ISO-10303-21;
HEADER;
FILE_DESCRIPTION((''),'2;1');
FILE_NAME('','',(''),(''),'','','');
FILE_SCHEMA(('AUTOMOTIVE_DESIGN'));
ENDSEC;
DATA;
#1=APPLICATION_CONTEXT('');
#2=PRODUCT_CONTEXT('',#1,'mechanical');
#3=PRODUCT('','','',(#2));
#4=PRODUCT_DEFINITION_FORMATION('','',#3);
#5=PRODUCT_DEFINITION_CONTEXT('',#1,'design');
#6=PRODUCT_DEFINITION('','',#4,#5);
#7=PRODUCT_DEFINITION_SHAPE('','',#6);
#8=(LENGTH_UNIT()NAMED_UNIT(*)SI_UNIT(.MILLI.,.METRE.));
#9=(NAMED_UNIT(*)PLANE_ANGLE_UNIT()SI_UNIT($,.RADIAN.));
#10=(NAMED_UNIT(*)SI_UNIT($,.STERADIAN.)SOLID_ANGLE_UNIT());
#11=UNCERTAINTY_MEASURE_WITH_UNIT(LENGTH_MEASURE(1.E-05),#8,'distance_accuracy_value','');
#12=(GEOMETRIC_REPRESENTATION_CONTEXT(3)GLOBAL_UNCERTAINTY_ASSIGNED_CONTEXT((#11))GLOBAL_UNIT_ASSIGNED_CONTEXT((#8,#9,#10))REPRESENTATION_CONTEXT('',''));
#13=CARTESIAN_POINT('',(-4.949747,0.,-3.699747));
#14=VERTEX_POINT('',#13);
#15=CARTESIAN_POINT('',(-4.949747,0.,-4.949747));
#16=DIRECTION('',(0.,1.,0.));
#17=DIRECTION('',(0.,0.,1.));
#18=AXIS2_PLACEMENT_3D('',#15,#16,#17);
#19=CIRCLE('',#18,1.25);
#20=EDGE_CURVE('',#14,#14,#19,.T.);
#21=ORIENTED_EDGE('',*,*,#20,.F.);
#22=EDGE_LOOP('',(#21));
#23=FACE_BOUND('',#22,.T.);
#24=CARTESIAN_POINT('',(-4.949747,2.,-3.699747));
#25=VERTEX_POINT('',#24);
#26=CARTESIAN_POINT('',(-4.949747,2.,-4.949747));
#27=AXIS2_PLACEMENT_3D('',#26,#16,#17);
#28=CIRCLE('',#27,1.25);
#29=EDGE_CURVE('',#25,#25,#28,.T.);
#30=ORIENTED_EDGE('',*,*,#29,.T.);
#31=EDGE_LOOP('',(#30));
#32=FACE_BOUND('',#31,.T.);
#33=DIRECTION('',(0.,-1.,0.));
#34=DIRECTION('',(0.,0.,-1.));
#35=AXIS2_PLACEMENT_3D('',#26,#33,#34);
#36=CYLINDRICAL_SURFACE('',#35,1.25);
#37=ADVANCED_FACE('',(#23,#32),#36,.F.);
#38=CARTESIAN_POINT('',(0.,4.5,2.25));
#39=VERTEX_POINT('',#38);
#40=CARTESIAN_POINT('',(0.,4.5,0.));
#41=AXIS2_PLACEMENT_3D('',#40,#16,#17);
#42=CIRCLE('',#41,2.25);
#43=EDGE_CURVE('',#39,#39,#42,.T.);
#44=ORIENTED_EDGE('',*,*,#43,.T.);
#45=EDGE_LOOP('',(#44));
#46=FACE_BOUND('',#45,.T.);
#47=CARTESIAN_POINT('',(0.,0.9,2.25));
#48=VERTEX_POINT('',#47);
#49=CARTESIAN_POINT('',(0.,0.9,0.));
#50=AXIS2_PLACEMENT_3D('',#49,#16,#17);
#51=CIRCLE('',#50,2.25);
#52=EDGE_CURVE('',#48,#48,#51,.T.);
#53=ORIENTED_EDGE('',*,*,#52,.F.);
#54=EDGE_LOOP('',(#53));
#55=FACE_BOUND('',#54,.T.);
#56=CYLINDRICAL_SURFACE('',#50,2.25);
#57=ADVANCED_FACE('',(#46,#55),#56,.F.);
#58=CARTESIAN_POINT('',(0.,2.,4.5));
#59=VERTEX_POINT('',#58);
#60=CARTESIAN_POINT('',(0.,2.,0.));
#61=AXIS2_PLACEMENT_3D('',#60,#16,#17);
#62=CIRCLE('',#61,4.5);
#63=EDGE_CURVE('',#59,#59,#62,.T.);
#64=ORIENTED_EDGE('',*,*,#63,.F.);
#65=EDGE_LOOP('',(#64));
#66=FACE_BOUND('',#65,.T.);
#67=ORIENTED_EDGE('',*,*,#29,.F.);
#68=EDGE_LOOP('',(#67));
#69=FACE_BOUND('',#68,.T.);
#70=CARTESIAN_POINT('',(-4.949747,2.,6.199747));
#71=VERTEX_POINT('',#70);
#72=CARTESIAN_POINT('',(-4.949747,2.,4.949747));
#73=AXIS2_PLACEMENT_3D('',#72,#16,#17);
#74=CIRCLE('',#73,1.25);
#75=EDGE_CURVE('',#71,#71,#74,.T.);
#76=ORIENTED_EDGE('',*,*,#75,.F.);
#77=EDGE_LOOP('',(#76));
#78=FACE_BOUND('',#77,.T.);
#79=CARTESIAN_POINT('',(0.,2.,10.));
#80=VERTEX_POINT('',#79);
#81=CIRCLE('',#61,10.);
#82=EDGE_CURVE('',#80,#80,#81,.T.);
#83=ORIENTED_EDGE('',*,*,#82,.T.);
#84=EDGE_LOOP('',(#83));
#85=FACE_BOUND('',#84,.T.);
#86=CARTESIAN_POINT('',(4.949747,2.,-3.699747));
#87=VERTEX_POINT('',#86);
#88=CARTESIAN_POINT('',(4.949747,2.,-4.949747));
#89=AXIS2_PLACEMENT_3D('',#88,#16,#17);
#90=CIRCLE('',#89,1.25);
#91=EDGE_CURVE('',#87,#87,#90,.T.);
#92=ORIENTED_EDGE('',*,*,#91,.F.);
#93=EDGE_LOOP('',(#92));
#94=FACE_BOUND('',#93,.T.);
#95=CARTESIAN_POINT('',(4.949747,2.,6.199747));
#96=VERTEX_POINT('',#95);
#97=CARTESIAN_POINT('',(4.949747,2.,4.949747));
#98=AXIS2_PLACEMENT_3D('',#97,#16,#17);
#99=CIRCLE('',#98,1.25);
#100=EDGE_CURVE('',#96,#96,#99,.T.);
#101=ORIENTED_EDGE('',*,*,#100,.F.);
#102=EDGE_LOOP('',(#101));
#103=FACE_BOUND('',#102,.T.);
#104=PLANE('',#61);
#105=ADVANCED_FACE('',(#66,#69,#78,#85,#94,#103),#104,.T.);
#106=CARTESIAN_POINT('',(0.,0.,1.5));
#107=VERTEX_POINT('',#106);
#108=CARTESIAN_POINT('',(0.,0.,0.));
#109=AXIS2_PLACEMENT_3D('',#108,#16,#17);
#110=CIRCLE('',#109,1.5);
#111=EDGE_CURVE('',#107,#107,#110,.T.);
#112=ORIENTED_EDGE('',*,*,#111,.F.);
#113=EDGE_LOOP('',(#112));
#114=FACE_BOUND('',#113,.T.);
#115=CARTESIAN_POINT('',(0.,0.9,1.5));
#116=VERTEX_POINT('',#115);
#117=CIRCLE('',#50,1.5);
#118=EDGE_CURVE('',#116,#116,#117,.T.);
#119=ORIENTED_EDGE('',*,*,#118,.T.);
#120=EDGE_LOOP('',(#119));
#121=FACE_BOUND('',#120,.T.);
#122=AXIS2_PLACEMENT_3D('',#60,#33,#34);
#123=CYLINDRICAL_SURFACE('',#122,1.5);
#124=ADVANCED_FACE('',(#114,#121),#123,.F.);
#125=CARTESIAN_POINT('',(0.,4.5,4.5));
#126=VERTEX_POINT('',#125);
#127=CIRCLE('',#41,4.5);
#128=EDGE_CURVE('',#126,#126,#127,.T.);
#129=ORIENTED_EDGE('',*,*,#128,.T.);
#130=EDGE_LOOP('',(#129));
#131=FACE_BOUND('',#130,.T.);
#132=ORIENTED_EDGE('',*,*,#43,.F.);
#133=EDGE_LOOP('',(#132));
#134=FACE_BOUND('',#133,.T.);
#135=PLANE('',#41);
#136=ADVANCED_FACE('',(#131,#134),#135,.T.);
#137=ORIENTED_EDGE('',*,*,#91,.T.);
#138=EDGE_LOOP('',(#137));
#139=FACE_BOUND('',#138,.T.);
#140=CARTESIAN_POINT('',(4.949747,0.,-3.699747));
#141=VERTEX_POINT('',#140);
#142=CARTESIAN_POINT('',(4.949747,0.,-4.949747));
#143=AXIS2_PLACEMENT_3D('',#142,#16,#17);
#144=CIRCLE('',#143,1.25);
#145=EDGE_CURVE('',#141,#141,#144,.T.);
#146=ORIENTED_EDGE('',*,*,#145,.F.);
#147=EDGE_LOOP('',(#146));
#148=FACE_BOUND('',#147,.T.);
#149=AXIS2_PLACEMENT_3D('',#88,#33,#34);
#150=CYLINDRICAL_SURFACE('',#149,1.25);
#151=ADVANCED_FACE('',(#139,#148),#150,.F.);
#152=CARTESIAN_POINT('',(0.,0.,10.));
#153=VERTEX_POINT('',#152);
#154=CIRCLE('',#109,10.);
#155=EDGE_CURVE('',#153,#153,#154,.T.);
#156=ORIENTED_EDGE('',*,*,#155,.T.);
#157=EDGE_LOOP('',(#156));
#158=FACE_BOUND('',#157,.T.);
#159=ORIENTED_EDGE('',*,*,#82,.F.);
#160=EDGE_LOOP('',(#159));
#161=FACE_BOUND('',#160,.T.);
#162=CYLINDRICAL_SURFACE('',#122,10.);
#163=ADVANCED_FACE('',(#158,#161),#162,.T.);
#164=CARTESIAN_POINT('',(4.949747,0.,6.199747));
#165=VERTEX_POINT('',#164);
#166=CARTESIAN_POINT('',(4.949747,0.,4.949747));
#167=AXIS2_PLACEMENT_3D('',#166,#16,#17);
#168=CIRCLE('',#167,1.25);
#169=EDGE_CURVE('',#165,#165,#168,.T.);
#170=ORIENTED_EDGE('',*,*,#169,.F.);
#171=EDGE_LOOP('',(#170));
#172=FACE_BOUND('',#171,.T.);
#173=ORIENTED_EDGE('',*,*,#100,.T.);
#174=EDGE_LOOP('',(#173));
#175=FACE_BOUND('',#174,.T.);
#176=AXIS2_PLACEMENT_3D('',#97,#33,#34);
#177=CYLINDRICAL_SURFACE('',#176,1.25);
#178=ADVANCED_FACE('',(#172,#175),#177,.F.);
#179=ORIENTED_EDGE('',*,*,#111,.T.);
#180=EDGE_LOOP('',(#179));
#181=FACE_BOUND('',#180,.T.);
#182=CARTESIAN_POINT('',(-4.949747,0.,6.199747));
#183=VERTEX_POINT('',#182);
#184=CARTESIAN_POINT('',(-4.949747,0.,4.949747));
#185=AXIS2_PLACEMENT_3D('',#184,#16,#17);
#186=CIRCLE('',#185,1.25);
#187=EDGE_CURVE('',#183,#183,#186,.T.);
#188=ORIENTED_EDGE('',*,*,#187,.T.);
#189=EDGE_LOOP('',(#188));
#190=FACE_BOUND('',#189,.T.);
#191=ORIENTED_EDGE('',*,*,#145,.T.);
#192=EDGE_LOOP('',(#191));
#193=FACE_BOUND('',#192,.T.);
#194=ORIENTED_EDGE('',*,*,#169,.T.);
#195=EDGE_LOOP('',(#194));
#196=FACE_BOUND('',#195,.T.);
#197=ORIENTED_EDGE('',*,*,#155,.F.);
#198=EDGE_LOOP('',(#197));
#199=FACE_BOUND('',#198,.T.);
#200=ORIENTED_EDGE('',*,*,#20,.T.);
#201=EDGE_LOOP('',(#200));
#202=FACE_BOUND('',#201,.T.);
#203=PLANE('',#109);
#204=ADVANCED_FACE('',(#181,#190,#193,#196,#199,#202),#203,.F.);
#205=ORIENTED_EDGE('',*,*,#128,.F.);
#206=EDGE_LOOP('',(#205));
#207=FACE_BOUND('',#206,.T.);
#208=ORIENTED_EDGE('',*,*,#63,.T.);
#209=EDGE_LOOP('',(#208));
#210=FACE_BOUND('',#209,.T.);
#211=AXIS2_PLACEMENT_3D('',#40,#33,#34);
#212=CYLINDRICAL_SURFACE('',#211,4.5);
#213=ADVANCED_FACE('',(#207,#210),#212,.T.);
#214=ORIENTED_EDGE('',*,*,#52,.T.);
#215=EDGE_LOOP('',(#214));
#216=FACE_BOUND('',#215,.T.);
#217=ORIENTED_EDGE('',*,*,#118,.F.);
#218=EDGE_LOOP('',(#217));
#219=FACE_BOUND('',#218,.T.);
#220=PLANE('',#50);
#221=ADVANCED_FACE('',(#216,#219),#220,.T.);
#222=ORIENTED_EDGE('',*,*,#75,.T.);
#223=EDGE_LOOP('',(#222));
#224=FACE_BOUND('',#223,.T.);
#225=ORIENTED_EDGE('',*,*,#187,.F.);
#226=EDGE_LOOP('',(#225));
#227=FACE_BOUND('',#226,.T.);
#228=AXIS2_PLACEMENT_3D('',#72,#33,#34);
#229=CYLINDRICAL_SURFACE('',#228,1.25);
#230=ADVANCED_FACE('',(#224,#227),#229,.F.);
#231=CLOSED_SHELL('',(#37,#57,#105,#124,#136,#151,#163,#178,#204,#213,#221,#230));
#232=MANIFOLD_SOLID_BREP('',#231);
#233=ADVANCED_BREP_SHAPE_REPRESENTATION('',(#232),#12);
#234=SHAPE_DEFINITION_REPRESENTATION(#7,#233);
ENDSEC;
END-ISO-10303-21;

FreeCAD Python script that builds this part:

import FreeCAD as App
import Part
import Sketcher

V = App.Vector
Q = App.Units.Quantity

doc = App.newDocument("Part")
body = doc.addObject("PartDesign::Body", "Body")

sketch1 = doc.addObject("Sketcher::SketchObject", "Sketch")
body.addObject(sketch1)
sketch1.AttachmentSupport = (doc.XZ_Plane, [""])
sketch1.MapMode = "FlatFace"
sketch1.addGeometry(Part.Circle(V(0, 0, 0), V(0, 0, 1), 10), False)
sketch1.addGeometry(Part.Circle(V(-4.9, 4.9, 0), V(0, 0, 1), 1.2), False)
sketch1.addGeometry(Part.Circle(V(4.9, 4.9, 0), V(0, 0, 1), 1.2), False)
sketch1.addGeometry(Part.Circle(V(-4.9, -4.9, 0), V(0, 0, 1), 1.2), False)
sketch1.addGeometry(Part.Circle(V(0, 0, 0), V(0, 0, 1), 1.5), False)
sketch1.addGeometry(Part.Circle(V(4.9, -4.9, 0), V(0, 0, 1), 1.2), False)
sketch1.addConstraint(Sketcher.Constraint("Coincident", 0, 3, -1, 1))
sketch1.addConstraint(Sketcher.Constraint("Coincident", 4, 3, -1, 1))
sketch1.addConstraint(Sketcher.Constraint("Equal", 1, 2))
sketch1.addConstraint(Sketcher.Constraint("Equal", 2, 3))
sketch1.addConstraint(Sketcher.Constraint("Equal", 3, 5))
sketch1.addConstraint(Sketcher.Constraint("Symmetric", 2, 3, 3, 3, -1, 1))
sketch1.addConstraint(Sketcher.Constraint("Symmetric", 1, 3, 5, 3, -1, 1))
sketch1.addConstraint(Sketcher.Constraint("Symmetric", 1, 3, 2, 3, -2))
sketch1.addConstraint(Sketcher.Constraint("Diameter", 0, Q("20 mm")))
sketch1.addConstraint(Sketcher.Constraint("Diameter", 4, Q("3 mm")))
sketch1.addConstraint(Sketcher.Constraint("Diameter", 1, Q("2.5 mm")))
sketch1.addConstraint(Sketcher.Constraint("DistanceX", 1, 3, -1, 1, Q("4.949747 mm")))
sketch1.addConstraint(Sketcher.Constraint("DistanceY", -1, 1, 1, 3, Q("4.949747 mm")))
pad1 = doc.addObject("PartDesign::Pad", "Pad")
body.addObject(pad1)
pad1.Profile = sketch1
pad1.Length = 2
pad1.Reversed = True

sketch2 = doc.addObject("Sketcher::SketchObject", "Sketch001")
body.addObject(sketch2)
sketch2.AttachmentSupport = (doc.XZ_Plane, [""])
sketch2.MapMode = "FlatFace"
sketch2.AttachmentOffset = App.Placement(V(0, 0, -2), App.Rotation())
sketch2.addGeometry(Part.Circle(V(0, 0, 0), V(0, 0, 1), 4.5), False)
sketch2.addGeometry(Part.Circle(V(0, 0, 0), V(0, 0, 1), 1.5), False)
sketch2.addConstraint(Sketcher.Constraint("Coincident", 0, 3, -1, 1))
sketch2.addConstraint(Sketcher.Constraint("Coincident", 1, 3, -1, 1))
sketch2.addConstraint(Sketcher.Constraint("Diameter", 0, Q("9 mm")))
sketch2.addConstraint(Sketcher.Constraint("Diameter", 1, Q("3 mm")))
pad2 = doc.addObject("PartDesign::Pad", "Pad001")
body.addObject(pad2)
pad2.Profile = sketch2
pad2.Length = 2.5
pad2.Reversed = True

sketch3 = doc.addObject("Sketcher::SketchObject", "Sketch002")
body.addObject(sketch3)
sketch3.AttachmentSupport = (doc.XZ_Plane, [""])
sketch3.MapMode = "FlatFace"
sketch3.AttachmentOffset = App.Placement(V(0, 0, -4.5), App.Rotation())
sketch3.addGeometry(Part.Circle(V(0, 0, 0), V(0, 0, 1), 2.2), False)
sketch3.addConstraint(Sketcher.Constraint("Coincident", 0, 3, -1, 1))
sketch3.addConstraint(Sketcher.Constraint("Diameter", 0, Q("4.5 mm")))
pocket1 = doc.addObject("PartDesign::Pocket", "Pocket")
body.addObject(pocket1)
pocket1.Profile = sketch3
pocket1.Length = 3.6
pocket1.Reversed = True

doc.recompute()
